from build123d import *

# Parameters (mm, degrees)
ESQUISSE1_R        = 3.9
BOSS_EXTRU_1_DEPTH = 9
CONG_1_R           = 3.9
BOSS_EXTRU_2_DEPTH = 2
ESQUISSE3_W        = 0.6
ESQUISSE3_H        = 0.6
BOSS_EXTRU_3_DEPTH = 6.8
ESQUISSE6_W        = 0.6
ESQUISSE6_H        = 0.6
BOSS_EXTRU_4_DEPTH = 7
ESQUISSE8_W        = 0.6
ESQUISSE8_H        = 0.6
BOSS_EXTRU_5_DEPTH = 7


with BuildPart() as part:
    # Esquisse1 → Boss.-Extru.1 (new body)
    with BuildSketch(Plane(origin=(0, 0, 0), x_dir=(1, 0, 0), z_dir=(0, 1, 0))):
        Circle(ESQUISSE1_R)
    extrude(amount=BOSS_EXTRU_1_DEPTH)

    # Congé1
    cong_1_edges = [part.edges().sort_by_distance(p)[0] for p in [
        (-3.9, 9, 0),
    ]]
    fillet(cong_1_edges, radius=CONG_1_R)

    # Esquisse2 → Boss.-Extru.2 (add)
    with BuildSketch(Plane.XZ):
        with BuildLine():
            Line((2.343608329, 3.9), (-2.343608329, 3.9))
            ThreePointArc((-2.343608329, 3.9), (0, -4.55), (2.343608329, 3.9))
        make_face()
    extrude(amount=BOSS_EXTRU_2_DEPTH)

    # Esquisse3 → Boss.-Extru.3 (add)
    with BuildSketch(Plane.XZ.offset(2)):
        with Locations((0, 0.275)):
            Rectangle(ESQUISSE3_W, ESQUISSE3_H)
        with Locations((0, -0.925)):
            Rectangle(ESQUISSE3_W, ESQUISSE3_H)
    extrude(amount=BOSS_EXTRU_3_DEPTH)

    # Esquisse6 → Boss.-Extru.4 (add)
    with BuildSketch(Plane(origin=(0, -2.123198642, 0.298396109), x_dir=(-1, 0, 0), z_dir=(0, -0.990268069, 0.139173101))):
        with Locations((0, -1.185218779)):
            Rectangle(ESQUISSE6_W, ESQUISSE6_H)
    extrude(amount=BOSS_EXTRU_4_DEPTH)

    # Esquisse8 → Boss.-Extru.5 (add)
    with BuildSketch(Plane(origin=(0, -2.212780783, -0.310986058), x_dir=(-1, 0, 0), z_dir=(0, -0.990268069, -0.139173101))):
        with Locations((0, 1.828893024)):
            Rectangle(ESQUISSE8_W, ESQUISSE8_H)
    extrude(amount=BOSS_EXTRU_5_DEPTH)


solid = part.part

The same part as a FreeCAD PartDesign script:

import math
import FreeCAD as App
import Part
import Sketcher
from FreeCAD import Vector


def edges_at(feature, points):
    """Names of the edges that pass closest to the given points."""
    edges = feature.Shape.Edges
    near = lambda p: min(range(len(edges)), key=lambda i: edges[i].distToShape(Part.Vertex(*p))[0])
    return sorted({f"Edge{near(p) + 1}" for p in points})


def add_polygon(sketch, points):
    """Adds a closed chain of lines whose ends are joined by coincident constraints."""
    first, n = sketch.GeometryCount, len(points)
    for a, b in zip(points, points[1:] + points[:1]):
        sketch.addGeometry(Part.LineSegment(App.Vector(*a, 0), App.Vector(*b, 0)), False)
    for i in range(n):
        sketch.addConstraint(Sketcher.Constraint("Coincident", first + i, 2, first + (i + 1) % n, 1))

doc = App.newDocument("Part")
body = doc.addObject("PartDesign::Body", "Body")

# Sketch on XZ plane
sketch1 = body.newObject("Sketcher::SketchObject", "Sketch")
sketch1.AttachmentSupport = (doc.getObject("XZ_Plane"), [""])
sketch1.MapMode = "FlatFace"
sketch1.addGeometry(Part.Circle(Vector(0, 0, 0), Vector(0, 0, 1), 3.9), False)
sketch1.addConstraint([
    Sketcher.Constraint("Coincident", 0, 3, -1, 1),
    Sketcher.Constraint("Diameter", 0, 7.8),
])
pad1 = body.newObject("PartDesign::Pad", "Pad")
pad1.Profile = sketch1
pad1.Length = 9
pad1.Reversed = True
doc.recompute()

fillet = body.newObject("PartDesign::Fillet", "Fillet")
fillet.Base = (pad1, edges_at(pad1, [(-3.9, 9, 0)]))
fillet.Radius = 3.9

# Sketch on XZ plane
sketch2 = body.newObject("Sketcher::SketchObject", "Sketch001")
sketch2.AttachmentSupport = (doc.getObject("XZ_Plane"), [""])
sketch2.MapMode = "FlatFace"
sketch2.addGeometry([
    Part.LineSegment(Vector(2.3, 3.9, 0), Vector(-2.3, 3.9, 0)),
    Part.ArcOfCircle(Part.Circle(Vector(0, 0, 0), Vector(0, 0, 1), 4.5), math.radians(121), math.radians(419)),
], False)
sketch2.addConstraint([
    Sketcher.Constraint("Coincident", 0, 1, 1, 2),
    Sketcher.Constraint("Coincident", 1, 1, 0, 2),
    Sketcher.Constraint("Horizontal", 0),
    Sketcher.Constraint("Coincident", 1, 3, -1, 1),
    Sketcher.Constraint("Radius", 1, 4.55),
    Sketcher.Constraint("DistanceY", -1, 1, 0, 1, 3.9),
])
pad2 = body.newObject("PartDesign::Pad", "Pad001")
pad2.Profile = sketch2
pad2.Length = 2

# Sketch on XZ plane
sketch3 = body.newObject("Sketcher::SketchObject", "Sketch002")
sketch3.AttachmentSupport = (doc.getObject("XZ_Plane"), [""])
sketch3.MapMode = "FlatFace"
sketch3.AttachmentOffset = App.Placement(Vector(0, 0, 2), App.Rotation())
add_polygon(sketch3, [(-0.3, 0.6), (-0.3, 0), (0.3, 0), (0.3, 0.6)])  # lines 0-3
add_polygon(sketch3, [(-0.3, -0.6), (-0.3, -1.2), (0.3, -1.2), (0.3, -0.6)])  # lines 4-7
sketch3.addConstraint([
    Sketcher.Constraint("Vertical", 0),
    Sketcher.Constraint("Horizontal", 1),
    Sketcher.Constraint("Vertical", 2),
    Sketcher.Constraint("Horizontal", 3),
    Sketcher.Constraint("Vertical", 4),
    Sketcher.Constraint("Horizontal", 5),
    Sketcher.Constraint("Vertical", 6),
    Sketcher.Constraint("Horizontal", 7),
    Sketcher.Constraint("Vertical", 3, 2, 4, 2),
    Sketcher.Constraint("Vertical", 2, 2, 5, 2),
    Sketcher.Constraint("Equal", 7, 0),
    Sketcher.Constraint("Equal", 2, 4),
    Sketcher.Constraint("DistanceX", 1, 1, 1, 2, 0.6),
    Sketcher.Constraint("DistanceX", 0, 2, -1, 1, 0.3),
    Sketcher.Constraint("DistanceY", 4, 2, 0, 2, 1.2),
    Sketcher.Constraint("DistanceY", 0, 2, -1, 1, 0.025),
])
pad3 = body.newObject("PartDesign::Pad", "Pad002")
pad3.Profile = sketch3
pad3.Length = 6.8

# Sketch on an angled plane
sketch4 = body.newObject("Sketcher::SketchObject", "Sketch003")
sketch4.Placement = App.Placement(Vector(0, -2.123199, 0.298396), App.Rotation(Vector(-1, 0, 0), Vector(0, -0.139173101, -0.990268069), Vector(0, -0.990268069, 0.139173101), "ZXY"))
add_polygon(sketch4, [(-0.3, -0.9), (-0.3, -1.5), (0.3, -1.5), (0.3, -0.9)])  # lines 0-3
sketch4.addConstraint([
    Sketcher.Constraint("Vertical", 0),
    Sketcher.Constraint("Horizontal", 1),
    Sketcher.Constraint("Vertical", 2),
    Sketcher.Constraint("Horizontal", 3),
    Sketcher.Constraint("Equal", 3, 0),
    Sketcher.Constraint("DistanceX", 1, 1, 1, 2, 0.6),
    Sketcher.Constraint("DistanceX", 0, 2, -1, 1, 0.3),
    Sketcher.Constraint("DistanceY", 0, 2, -1, 1, 1.485219),
])
pad4 = body.newObject("PartDesign::Pad", "Pad003")
pad4.Profile = sketch4
pad4.Length = 7

# Sketch on an angled plane
sketch5 = body.newObject("Sketcher::SketchObject", "Sketch004")
sketch5.Placement = App.Placement(Vector(0, -2.212781, -0.310986), App.Rotation(Vector(-1, 0, 0), Vector(0, 0.139173101, -0.990268069), Vector(0, -0.990268069, -0.139173101), "ZXY"))
add_polygon(sketch5, [(-0.3, 2.1), (-0.3, 1.5), (0.3, 1.5), (0.3, 2.1)])  # lines 0-3
sketch5.addConstraint([
    Sketcher.Constraint("Vertical", 0),
    Sketcher.Constraint("Horizontal", 1),
    Sketcher.Constraint("Vertical", 2),
    Sketcher.Constraint("Horizontal", 3),
    Sketcher.Constraint("Equal", 3, 0),
    Sketcher.Constraint("DistanceX", 1, 1, 1, 2, 0.6),
    Sketcher.Constraint("DistanceX", 0, 2, -1, 1, 0.3),
    Sketcher.Constraint("DistanceY", -1, 1, 0, 2, 1.528893),
])
pad5 = body.newObject("PartDesign::Pad", "Pad004")
pad5.Profile = sketch5
pad5.Length = 7

doc.recompute()
